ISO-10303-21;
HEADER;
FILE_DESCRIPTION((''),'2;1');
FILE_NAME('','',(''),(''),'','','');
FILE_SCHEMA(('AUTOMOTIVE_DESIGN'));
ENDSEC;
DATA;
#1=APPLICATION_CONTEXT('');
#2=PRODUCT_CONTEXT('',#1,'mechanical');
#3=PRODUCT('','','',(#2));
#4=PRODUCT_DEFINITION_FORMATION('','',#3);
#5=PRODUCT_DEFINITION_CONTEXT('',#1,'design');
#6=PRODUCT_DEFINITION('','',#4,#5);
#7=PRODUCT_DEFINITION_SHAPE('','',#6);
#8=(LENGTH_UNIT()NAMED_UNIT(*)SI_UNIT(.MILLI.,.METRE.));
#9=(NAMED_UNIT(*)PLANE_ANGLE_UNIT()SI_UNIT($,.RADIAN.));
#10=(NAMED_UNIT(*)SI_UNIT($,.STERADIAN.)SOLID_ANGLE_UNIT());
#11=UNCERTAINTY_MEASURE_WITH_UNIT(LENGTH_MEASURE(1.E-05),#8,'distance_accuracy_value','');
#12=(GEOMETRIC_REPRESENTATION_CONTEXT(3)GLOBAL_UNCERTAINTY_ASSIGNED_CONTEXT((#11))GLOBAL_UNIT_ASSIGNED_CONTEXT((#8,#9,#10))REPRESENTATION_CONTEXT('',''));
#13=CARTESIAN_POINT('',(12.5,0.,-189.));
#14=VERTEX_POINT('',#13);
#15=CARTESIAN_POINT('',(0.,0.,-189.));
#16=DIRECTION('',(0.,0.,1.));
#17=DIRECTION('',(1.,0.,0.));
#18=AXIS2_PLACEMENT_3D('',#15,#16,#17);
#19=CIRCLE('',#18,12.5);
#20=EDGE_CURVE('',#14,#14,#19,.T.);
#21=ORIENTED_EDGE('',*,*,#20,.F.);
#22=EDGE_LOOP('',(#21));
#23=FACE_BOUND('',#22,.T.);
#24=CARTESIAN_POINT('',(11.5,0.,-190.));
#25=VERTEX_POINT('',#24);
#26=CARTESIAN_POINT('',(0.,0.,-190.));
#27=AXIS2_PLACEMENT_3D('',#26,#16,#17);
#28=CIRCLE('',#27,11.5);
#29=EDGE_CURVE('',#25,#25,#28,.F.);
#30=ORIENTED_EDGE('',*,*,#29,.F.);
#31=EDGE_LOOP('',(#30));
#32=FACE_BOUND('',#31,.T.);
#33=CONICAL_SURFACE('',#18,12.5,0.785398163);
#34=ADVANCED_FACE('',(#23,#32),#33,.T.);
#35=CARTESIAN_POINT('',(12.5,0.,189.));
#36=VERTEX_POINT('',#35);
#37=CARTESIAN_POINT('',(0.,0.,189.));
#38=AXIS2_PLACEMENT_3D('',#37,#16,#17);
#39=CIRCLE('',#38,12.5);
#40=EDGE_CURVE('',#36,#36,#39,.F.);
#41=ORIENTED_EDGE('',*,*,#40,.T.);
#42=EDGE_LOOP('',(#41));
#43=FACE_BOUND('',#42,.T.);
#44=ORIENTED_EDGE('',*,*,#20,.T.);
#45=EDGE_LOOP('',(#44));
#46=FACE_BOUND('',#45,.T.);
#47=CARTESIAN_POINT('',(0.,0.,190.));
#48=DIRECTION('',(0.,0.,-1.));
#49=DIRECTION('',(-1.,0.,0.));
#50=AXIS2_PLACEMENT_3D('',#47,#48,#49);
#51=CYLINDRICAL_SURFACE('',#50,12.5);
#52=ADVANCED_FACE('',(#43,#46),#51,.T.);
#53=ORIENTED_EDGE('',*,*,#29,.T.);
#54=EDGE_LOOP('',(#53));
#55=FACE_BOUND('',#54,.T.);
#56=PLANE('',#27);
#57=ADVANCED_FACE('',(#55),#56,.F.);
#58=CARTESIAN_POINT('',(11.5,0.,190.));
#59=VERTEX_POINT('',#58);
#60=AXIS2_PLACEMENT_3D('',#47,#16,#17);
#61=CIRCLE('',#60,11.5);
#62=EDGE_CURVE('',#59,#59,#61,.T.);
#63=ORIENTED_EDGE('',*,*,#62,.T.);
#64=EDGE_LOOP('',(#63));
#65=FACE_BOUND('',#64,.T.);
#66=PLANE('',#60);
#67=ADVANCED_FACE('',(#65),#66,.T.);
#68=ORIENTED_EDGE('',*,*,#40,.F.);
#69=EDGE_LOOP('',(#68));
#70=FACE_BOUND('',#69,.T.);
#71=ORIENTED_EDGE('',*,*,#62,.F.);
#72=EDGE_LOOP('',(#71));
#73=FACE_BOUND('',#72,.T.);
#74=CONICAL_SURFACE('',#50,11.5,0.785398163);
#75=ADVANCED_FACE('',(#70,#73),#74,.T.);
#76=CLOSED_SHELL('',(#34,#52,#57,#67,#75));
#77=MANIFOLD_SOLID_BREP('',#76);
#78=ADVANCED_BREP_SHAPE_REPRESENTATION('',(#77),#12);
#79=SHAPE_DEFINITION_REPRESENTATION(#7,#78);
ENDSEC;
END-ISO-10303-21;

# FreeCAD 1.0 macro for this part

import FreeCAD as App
import Part
import Sketcher

V = App.Vector


def edges_at(feature, points):
    """Names of the edges that pass closest to the given points."""
    edges = feature.Shape.Edges
    near = lambda p: min(range(len(edges)), key=lambda i: edges[i].distToShape(Part.Vertex(*p))[0])
    return sorted({f"Edge{near(p) + 1}" for p in points})

doc = App.newDocument("Part")
params = doc.addObject("Spreadsheet::Sheet", "Params")
for row, (alias, value) in enumerate([
    ("sketch1_diameter", "25 mm"),
    ("pad1_length", "380 mm"),
    ("chamfer_size", "1 mm"),
], start=1):
    params.set(f"A{row}", alias)
    params.set(f"B{row}", "=" + value)
    params.setAlias(f"B{row}", alias)

body = doc.addObject("PartDesign::Body", "Body")

sketch1 = doc.addObject("Sketcher::SketchObject", "Sketch")
body.addObject(sketch1)
sketch1.AttachmentSupport = (doc.XY_Plane, [""])
sketch1.MapMode = "FlatFace"
sketch1.addGeometry(Part.Circle(V(0, 0, 0), V(0, 0, 1), 12), False)
sketch1.addConstraint([
    Sketcher.Constraint("Coincident", 0, 3, -1, 1),
    Sketcher.Constraint("Diameter", 0, 25.0),
])
sketch1.setExpression("Constraints[1]", "Params.sketch1_diameter")
pad1 = doc.addObject("PartDesign::Pad", "Pad")
body.addObject(pad1)
pad1.Profile = sketch1
pad1.setExpression("Length", "Params.pad1_length")
pad1.Midplane = True
doc.recompute()

chamfer = doc.addObject("PartDesign::Chamfer", "Chamfer")
body.addObject(chamfer)
chamfer.Base = (pad1, edges_at(pad1, [(-12.5, 0, -190), (-12.5, 0, 190)]))
chamfer.setExpression("Size", "Params.chamfer_size")

doc.recompute()
